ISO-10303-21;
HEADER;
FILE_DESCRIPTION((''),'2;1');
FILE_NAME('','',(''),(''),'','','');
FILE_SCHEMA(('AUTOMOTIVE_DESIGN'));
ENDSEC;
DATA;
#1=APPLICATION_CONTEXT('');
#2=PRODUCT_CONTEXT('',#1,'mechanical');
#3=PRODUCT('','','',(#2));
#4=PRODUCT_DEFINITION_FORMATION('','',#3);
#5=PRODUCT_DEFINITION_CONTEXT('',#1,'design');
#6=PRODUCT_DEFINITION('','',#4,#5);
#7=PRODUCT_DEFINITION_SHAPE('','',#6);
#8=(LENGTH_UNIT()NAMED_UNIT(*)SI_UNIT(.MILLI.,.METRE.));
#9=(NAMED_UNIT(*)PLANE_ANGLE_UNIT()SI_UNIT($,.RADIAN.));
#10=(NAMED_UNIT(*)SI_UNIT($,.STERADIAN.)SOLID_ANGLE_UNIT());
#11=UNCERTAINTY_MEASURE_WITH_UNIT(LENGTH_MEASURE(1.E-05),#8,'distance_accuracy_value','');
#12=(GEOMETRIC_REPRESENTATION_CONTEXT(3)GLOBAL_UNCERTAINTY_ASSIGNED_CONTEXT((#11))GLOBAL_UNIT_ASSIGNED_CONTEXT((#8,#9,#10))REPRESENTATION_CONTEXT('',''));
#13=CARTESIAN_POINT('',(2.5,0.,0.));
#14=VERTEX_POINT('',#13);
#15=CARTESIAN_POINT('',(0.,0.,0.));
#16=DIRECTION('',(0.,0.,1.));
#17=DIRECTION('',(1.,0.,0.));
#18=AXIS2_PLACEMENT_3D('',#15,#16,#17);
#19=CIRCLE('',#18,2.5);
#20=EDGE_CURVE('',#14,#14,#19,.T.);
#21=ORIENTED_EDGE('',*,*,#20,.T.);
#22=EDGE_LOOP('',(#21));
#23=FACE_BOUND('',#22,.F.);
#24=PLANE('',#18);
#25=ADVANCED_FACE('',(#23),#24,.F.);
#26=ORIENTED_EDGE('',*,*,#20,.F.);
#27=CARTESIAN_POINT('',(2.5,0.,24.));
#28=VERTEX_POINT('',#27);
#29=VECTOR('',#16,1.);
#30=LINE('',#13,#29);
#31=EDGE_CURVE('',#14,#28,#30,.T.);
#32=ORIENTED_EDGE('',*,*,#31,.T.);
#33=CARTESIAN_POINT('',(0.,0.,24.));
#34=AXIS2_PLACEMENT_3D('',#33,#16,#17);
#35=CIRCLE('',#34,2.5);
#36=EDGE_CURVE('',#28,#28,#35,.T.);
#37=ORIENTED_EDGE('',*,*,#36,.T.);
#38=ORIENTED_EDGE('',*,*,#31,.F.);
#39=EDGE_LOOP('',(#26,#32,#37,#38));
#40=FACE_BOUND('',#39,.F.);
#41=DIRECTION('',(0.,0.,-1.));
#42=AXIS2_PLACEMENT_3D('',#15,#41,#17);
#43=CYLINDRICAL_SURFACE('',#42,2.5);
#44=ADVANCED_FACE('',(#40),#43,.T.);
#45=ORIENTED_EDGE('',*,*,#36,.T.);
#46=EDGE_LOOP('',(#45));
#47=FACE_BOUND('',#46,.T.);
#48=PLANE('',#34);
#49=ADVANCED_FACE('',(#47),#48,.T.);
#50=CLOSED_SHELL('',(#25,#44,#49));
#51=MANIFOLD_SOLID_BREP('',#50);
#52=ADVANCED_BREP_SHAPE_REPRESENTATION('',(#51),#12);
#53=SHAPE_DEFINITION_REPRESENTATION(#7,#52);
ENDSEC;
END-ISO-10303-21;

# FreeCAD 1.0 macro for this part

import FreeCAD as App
import Part
import Sketcher

V = App.Vector
Q = App.Units.Quantity

doc = App.newDocument("Part")
params = doc.addObject("Spreadsheet::Sheet", "Params")
for row, (alias, value) in enumerate([
    ("sketch1_diameter", "5 mm"),
    ("pad1_length", "24 mm"),
], start=1):
    params.set(f"A{row}", alias)
    params.set(f"B{row}", "=" + value)
    params.setAlias(f"B{row}", alias)

body = doc.addObject("PartDesign::Body", "Body")

sketch1 = body.newObject("Sketcher::SketchObject", "Sketch")
sketch1.AttachmentSupport = (doc.getObject("XY_Plane"), [""])
sketch1.MapMode = "FlatFace"
sketch1.addGeometry(Part.Circle(V(0, 0, 0), V(0, 0, 1), 2.5), False)
sketch1.addConstraint([
    Sketcher.Constraint("Coincident", 0, 3, -1, 1),
    Sketcher.Constraint("Diameter", 0, Q("5 mm")),
])
sketch1.setExpression("Constraints[1]", "Params.sketch1_diameter")
pad1 = body.newObject("PartDesign::Pad", "Pad")
pad1.Profile = sketch1
pad1.setExpression("Length", "Params.pad1_length")

doc.recompute()
